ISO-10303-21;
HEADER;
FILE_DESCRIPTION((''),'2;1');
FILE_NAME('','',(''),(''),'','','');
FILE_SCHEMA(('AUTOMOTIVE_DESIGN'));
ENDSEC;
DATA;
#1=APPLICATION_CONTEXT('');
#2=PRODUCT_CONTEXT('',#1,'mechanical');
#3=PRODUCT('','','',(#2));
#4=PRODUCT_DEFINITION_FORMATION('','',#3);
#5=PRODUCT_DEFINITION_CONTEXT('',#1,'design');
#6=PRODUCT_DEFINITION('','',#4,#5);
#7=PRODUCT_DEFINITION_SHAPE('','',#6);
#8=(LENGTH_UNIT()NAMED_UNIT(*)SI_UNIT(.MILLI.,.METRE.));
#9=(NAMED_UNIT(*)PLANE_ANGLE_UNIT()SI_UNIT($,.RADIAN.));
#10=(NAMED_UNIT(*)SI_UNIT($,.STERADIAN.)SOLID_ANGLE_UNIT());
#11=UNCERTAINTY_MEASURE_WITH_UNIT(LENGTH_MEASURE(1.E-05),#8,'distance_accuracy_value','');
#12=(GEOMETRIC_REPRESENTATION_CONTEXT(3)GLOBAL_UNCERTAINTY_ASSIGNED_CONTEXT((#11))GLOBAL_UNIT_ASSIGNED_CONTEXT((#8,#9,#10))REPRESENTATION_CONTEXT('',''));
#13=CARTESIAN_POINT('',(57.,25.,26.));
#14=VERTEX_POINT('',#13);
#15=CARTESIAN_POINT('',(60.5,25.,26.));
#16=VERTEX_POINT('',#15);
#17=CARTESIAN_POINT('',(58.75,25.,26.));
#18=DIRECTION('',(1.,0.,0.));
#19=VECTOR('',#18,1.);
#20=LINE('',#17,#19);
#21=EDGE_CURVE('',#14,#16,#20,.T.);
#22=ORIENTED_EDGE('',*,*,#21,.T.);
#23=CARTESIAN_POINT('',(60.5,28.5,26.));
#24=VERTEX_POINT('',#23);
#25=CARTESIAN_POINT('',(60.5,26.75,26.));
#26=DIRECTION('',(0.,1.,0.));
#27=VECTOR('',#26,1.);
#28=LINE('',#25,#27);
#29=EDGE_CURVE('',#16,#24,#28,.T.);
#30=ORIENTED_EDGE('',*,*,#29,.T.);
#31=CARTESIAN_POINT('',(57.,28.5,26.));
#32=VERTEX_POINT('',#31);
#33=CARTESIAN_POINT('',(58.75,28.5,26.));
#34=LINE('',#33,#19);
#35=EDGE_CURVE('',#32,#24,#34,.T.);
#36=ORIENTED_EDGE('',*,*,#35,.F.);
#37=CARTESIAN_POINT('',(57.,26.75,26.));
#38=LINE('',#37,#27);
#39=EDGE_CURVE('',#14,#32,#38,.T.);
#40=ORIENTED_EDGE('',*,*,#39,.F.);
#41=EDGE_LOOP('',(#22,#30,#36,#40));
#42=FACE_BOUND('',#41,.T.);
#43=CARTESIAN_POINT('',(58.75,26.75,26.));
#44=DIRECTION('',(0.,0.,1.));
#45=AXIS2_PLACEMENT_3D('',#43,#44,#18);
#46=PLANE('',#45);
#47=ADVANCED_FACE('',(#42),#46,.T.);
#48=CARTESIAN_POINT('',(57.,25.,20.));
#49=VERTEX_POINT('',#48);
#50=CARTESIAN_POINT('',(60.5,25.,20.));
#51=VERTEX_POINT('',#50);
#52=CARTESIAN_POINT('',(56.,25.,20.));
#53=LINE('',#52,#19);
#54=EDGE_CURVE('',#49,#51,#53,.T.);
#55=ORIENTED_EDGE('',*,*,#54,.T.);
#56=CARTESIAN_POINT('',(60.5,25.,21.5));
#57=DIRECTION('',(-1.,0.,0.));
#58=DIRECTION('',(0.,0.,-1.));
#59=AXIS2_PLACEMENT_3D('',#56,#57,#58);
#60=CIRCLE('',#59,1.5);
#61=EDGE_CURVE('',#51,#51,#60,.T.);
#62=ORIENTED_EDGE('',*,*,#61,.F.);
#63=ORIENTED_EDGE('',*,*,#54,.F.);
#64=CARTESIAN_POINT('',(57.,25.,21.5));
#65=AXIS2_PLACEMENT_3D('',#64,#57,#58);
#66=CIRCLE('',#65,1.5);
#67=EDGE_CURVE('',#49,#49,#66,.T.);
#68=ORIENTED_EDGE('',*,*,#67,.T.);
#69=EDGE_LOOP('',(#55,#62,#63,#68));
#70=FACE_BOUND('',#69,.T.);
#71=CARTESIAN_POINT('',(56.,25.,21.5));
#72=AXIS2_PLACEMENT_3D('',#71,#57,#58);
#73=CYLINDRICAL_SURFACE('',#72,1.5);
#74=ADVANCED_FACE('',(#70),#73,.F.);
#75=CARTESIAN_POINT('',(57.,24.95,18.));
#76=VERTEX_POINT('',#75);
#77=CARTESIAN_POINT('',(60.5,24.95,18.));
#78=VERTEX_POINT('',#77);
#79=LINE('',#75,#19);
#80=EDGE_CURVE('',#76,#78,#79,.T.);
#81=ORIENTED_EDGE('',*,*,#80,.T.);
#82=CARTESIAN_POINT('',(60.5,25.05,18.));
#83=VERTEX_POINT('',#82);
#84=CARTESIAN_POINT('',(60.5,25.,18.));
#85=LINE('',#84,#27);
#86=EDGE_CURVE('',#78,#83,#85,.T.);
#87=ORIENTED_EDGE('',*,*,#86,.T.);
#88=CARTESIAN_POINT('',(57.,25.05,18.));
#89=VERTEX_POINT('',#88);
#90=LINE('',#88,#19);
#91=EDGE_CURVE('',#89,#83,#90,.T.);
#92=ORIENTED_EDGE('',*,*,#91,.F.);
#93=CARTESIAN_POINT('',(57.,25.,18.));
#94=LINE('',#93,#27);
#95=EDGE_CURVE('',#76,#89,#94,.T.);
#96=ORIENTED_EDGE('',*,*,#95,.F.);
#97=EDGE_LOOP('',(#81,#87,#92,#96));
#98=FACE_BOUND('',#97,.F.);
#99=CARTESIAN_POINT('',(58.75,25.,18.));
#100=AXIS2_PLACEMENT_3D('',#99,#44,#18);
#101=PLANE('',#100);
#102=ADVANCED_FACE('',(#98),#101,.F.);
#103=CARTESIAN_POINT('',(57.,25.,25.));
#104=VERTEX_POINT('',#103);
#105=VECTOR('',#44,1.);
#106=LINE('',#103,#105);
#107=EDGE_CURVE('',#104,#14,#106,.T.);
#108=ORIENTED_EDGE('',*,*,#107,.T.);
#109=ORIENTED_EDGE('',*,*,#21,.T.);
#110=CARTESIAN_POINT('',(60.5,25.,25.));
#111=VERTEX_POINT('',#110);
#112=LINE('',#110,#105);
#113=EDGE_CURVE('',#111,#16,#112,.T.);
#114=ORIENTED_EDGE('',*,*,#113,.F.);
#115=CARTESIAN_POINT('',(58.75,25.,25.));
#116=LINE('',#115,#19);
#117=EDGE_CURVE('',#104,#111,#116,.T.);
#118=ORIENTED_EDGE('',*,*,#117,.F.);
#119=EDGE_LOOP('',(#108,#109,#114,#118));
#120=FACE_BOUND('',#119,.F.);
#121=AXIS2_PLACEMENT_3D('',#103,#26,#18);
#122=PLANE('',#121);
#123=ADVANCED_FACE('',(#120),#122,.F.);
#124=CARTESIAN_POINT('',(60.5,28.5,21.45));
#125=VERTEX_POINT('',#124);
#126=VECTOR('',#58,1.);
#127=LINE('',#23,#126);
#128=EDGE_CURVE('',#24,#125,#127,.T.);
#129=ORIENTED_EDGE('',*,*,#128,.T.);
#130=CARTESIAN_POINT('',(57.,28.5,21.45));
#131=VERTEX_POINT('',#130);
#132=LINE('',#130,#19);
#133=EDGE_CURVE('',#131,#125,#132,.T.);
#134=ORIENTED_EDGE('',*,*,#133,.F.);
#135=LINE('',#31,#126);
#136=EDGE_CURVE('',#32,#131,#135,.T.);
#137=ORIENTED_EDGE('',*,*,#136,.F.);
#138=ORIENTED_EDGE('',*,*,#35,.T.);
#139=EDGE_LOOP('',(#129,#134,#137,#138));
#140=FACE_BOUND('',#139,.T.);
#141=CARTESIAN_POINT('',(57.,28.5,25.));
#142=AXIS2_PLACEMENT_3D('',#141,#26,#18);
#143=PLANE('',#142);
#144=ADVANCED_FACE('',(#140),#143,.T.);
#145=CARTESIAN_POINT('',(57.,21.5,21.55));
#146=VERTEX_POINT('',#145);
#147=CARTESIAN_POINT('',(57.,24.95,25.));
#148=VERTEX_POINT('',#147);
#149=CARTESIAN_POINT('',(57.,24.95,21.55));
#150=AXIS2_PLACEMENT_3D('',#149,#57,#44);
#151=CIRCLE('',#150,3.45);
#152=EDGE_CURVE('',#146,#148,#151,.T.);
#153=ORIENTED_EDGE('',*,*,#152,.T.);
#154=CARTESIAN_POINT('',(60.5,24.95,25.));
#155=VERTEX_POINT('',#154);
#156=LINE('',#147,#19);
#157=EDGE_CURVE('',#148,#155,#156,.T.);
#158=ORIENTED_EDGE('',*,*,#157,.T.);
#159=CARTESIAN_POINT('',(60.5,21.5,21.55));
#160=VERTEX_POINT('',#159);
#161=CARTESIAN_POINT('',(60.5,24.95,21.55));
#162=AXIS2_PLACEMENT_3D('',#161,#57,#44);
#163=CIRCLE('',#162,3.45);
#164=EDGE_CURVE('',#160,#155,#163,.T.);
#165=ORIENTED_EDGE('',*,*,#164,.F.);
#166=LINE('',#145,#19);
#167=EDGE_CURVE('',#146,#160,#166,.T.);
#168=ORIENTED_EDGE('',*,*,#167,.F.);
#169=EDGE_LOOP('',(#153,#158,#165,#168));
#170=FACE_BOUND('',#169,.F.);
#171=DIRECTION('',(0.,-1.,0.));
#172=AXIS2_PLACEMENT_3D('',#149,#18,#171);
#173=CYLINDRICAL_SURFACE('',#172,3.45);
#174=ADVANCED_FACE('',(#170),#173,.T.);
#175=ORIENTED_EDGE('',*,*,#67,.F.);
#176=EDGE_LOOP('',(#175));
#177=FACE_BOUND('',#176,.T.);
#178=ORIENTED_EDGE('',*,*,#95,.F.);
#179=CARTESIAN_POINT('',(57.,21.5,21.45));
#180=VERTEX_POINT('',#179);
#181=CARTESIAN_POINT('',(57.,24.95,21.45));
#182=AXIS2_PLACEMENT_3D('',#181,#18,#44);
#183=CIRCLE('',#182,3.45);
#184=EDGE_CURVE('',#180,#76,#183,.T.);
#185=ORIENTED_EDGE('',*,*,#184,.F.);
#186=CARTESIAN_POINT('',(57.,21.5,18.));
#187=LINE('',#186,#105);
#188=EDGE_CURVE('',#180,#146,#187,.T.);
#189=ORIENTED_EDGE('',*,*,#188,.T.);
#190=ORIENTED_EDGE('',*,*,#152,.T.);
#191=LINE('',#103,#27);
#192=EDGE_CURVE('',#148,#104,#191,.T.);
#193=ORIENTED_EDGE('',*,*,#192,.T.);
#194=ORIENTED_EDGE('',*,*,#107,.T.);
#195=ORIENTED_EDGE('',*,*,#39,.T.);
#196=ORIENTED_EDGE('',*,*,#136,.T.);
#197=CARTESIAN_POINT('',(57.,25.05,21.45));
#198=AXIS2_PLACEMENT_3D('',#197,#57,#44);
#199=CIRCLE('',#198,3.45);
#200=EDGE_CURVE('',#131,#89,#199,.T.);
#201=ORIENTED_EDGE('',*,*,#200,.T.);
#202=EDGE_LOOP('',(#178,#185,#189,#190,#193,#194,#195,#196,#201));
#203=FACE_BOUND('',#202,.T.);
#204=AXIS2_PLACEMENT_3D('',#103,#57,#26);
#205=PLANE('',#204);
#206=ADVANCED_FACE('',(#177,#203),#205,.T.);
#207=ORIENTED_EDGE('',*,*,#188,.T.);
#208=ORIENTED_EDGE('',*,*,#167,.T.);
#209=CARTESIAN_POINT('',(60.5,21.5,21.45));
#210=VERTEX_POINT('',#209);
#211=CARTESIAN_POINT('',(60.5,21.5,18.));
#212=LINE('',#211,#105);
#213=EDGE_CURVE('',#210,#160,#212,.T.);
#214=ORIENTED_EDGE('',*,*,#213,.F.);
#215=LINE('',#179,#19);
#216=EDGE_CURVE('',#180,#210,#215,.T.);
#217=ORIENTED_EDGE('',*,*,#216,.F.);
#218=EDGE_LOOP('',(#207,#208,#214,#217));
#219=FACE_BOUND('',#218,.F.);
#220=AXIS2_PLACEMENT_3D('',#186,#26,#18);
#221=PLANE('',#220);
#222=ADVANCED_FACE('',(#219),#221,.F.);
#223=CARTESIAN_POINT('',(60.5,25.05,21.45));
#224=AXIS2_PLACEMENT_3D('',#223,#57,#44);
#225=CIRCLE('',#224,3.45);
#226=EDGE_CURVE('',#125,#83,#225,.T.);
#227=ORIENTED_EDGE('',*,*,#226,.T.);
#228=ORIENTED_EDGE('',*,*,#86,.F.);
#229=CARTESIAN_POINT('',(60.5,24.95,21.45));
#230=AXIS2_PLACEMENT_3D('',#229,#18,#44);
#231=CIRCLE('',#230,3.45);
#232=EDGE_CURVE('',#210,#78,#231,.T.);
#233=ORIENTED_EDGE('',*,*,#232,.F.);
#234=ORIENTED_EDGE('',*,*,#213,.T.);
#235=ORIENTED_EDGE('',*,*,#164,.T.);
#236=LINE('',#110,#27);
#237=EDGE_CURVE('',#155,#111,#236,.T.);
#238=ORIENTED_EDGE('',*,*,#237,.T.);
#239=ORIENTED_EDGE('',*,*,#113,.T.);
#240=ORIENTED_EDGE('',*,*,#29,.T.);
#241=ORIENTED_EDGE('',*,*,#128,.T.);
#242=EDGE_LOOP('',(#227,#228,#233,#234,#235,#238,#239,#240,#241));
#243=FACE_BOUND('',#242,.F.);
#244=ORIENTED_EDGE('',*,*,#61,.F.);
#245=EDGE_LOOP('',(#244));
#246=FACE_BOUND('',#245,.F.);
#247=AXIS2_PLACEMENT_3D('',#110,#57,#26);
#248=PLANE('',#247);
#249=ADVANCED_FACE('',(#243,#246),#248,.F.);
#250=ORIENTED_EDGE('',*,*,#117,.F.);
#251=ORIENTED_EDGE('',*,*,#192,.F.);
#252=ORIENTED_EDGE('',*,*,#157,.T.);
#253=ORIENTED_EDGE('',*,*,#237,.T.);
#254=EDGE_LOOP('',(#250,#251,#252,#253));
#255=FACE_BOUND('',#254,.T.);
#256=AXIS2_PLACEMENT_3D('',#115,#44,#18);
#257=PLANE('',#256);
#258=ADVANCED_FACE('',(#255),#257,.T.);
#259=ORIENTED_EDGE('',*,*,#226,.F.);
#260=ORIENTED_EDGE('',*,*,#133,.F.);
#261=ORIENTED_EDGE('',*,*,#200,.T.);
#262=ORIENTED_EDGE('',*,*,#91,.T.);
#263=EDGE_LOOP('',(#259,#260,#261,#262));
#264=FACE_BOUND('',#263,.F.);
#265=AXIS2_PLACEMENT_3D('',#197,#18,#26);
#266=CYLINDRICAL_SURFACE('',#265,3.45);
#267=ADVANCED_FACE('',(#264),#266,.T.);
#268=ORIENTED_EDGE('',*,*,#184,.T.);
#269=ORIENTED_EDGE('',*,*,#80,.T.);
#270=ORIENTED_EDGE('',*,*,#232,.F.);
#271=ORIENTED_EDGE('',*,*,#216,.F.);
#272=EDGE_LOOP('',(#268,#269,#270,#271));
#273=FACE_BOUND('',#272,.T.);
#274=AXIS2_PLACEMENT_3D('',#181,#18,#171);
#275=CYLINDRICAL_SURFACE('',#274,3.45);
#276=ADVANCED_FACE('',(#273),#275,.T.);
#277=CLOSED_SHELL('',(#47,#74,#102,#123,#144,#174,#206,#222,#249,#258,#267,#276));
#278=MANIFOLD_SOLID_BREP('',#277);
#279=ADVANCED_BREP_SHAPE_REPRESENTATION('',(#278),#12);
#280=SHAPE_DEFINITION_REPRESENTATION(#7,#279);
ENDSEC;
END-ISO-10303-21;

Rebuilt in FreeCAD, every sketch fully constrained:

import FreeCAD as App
import Part
import Sketcher

V = App.Vector
Q = App.Units.Quantity


def edges_at(feature, points):
    """Names of the edges that pass closest to the given points."""
    edges = feature.Shape.Edges
    near = lambda p: min(range(len(edges)), key=lambda i: edges[i].distToShape(Part.Vertex(*p))[0])
    return sorted({f"Edge{near(p) + 1}" for p in points})


def add_polygon(sketch, points):
    """Adds a closed chain of lines whose ends are joined by coincident constraints."""
    first, n = sketch.GeometryCount, len(points)
    for a, b in zip(points, points[1:] + points[:1]):
        sketch.addGeometry(Part.LineSegment(App.Vector(*a, 0), App.Vector(*b, 0)), False)
    for i in range(n):
        sketch.addConstraint(Sketcher.Constraint("Coincident", first + i, 2, first + (i + 1) % n, 1))

doc = App.newDocument("Part")
body = doc.addObject("PartDesign::Body", "Body")

sketch1 = doc.addObject("Sketcher::SketchObject", "Sketch")
body.addObject(sketch1)
sketch1.AttachmentSupport = (doc.XY_Plane, [""])
sketch1.MapMode = "FlatFace"
sketch1.AttachmentOffset = App.Placement(V(0, 0, 25), App.Rotation())
add_polygon(sketch1, [(57, 28.5), (57, 25), (60.5, 25), (60.5, 28.5)])
sketch1.addConstraint(Sketcher.Constraint("Vertical", 0))
sketch1.addConstraint(Sketcher.Constraint("Horizontal", 1))
sketch1.addConstraint(Sketcher.Constraint("Vertical", 2))
sketch1.addConstraint(Sketcher.Constraint("Horizontal", 3))
sketch1.addConstraint(Sketcher.Constraint("Equal", 3, 0))
sketch1.addConstraint(Sketcher.Constraint("DistanceX", 1, 1, 1, 2, Q("3.5 mm")))
sketch1.addConstraint(Sketcher.Constraint("DistanceX", -1, 1, 0, 2, Q("57 mm")))
sketch1.addConstraint(Sketcher.Constraint("DistanceY", -1, 1, 0, 2, Q("25 mm")))
pad1 = doc.addObject("PartDesign::Pad", "Pad")
body.addObject(pad1)
pad1.Profile = sketch1
pad1.Length = 1
body2 = doc.addObject("PartDesign::Body", "Body001")

sketch2 = doc.addObject("Sketcher::SketchObject", "Sketch001")
body2.addObject(sketch2)
sketch2.AttachmentSupport = (doc.getObject("YZ_Plane001"), [""])
sketch2.MapMode = "FlatFace"
sketch2.AttachmentOffset = App.Placement(V(0, 0, 56), App.Rotation())
sketch2.addGeometry(Part.Circle(V(23, 21.5, 0), V(0, 0, 1), 1.5), False)
sketch2.addConstraint(Sketcher.Constraint("Diameter", 0, Q("3 mm")))
sketch2.addConstraint(Sketcher.Constraint("DistanceX", -1, 1, 0, 3, Q("23 mm")))
sketch2.addConstraint(Sketcher.Constraint("DistanceY", -1, 1, 0, 3, Q("21.5 mm")))
pad2 = doc.addObject("PartDesign::Pad", "Pad001")
body2.addObject(pad2)
pad2.Profile = sketch2
pad2.Length = 20
body3 = doc.addObject("PartDesign::Body", "Body002")

sketch3 = doc.addObject("Sketcher::SketchObject", "Sketch002")
body3.addObject(sketch3)
sketch3.AttachmentSupport = (doc.getObject("XY_Plane002"), [""])
sketch3.MapMode = "FlatFace"
sketch3.AttachmentOffset = App.Placement(V(0, 0, 18), App.Rotation())
add_polygon(sketch3, [(57, 26.5), (57, 19.5), (60.5, 19.5), (60.5, 26.5)])
sketch3.addConstraint(Sketcher.Constraint("Vertical", 0))
sketch3.addConstraint(Sketcher.Constraint("Horizontal", 1))
sketch3.addConstraint(Sketcher.Constraint("Vertical", 2))
sketch3.addConstraint(Sketcher.Constraint("Horizontal", 3))
sketch3.addConstraint(Sketcher.Constraint("DistanceY", 0, 2, 0, 1, Q("7 mm")))
sketch3.addConstraint(Sketcher.Constraint("DistanceX", 1, 1, 1, 2, Q("3.5 mm")))
sketch3.addConstraint(Sketcher.Constraint("DistanceX", -1, 1, 0, 2, Q("57 mm")))
sketch3.addConstraint(Sketcher.Constraint("DistanceY", -1, 1, 0, 2, Q("19.5 mm")))
pad3 = doc.addObject("PartDesign::Pad", "Pad002")
body3.addObject(pad3)
pad3.Profile = sketch3
pad3.Length = 7
doc.recompute()

fillet = doc.addObject("PartDesign::Fillet", "Fillet")
body3.addObject(fillet)
fillet.Base = (pad3, edges_at(pad3, [(58.75, 19.5, 18), (58.75, 19.5, 25), (58.75, 26.5, 18)]))
fillet.Radius = 3.45
doc.recompute()

boolean = doc.addObject("PartDesign::Boolean", "Boolean")
body3.addObject(boolean)
boolean.Type = "Cut"
boolean.addObjects([body2])
body4 = doc.addObject("PartDesign::Body", "Body003")
doc.recompute()

body3.Placement = App.Placement(V(0, 2, 0), App.Rotation(V(0, 0, 1), 0))
boolean2 = doc.addObject("PartDesign::Boolean", "Boolean001")
body4.addObject(boolean2)
boolean2.Type = "Fuse"
boolean2.addObjects([body3])
doc.recompute()

boolean3 = doc.addObject("PartDesign::Boolean", "Boolean002")
body4.addObject(boolean3)
boolean3.Type = "Fuse"
boolean3.addObjects([body])

doc.recompute()
